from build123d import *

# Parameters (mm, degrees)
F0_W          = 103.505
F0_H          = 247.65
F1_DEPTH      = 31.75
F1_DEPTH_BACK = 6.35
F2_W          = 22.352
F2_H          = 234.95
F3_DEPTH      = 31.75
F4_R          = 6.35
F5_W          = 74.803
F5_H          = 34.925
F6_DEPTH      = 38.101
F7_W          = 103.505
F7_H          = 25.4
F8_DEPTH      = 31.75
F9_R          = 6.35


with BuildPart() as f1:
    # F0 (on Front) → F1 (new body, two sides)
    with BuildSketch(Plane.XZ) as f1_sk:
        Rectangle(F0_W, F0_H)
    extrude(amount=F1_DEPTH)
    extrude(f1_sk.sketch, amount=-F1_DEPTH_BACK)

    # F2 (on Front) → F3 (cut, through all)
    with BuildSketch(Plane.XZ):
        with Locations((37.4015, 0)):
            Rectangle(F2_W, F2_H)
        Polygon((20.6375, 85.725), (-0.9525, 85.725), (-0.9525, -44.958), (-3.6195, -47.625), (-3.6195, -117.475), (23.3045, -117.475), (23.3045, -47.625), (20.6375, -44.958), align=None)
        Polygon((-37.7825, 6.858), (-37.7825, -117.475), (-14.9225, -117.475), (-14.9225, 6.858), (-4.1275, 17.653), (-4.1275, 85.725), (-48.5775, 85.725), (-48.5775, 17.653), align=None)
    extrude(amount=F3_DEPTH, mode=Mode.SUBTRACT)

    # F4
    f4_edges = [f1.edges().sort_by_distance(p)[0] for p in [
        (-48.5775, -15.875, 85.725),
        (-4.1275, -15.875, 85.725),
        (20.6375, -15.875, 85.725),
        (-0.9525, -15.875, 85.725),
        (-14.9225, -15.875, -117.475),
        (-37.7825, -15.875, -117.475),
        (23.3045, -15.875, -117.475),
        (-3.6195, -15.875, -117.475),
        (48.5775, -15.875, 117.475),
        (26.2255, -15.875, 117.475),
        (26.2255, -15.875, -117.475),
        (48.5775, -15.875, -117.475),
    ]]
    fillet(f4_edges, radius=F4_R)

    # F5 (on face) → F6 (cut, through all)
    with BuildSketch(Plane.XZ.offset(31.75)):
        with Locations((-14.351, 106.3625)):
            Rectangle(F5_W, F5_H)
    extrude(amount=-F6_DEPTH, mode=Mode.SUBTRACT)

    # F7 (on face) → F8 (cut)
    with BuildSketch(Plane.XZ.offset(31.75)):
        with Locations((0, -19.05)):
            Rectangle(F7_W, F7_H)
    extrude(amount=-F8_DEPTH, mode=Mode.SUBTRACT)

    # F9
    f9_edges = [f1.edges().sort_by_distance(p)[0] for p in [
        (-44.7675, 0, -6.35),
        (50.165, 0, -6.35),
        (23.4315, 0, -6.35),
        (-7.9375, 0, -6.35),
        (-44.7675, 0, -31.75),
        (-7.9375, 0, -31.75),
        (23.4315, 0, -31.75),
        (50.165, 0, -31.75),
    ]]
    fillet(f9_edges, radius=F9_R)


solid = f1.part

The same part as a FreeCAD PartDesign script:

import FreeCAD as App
import Part
import Sketcher
Q = App.Units.Quantity


def edges_at(feature, points):
    """Names of the edges that pass closest to the given points."""
    edges = feature.Shape.Edges
    near = lambda p: min(range(len(edges)), key=lambda i: edges[i].distToShape(Part.Vertex(*p))[0])
    return sorted({f"Edge{near(p) + 1}" for p in points})

doc = App.newDocument("Part")
body = doc.addObject("PartDesign::Body", "Body")

# Sketch on XZ plane
sketch1 = body.newObject("Sketcher::SketchObject", "Sketch")
sketch1.AttachmentSupport = (doc.getObject("XZ_Plane"), [""])
sketch1.MapMode = "FlatFace"
sketch1.addGeometry([
    Part.LineSegment(App.Vector(-52, 124, 0), App.Vector(-52, -124, 0)),
    Part.LineSegment(App.Vector(-52, -124, 0), App.Vector(52, -124, 0)),
    Part.LineSegment(App.Vector(52, -124, 0), App.Vector(52, 124, 0)),
    Part.LineSegment(App.Vector(52, 124, 0), App.Vector(-52, 124, 0)),
], False)
sketch1.addConstraint([
    Sketcher.Constraint("Coincident", 0, 2, 1, 1),
    Sketcher.Constraint("Coincident", 1, 2, 2, 1),
    Sketcher.Constraint("Coincident", 2, 2, 3, 1),
    Sketcher.Constraint("Coincident", 3, 2, 0, 1),
    Sketcher.Constraint("Vertical", 0),
    Sketcher.Constraint("Horizontal", 1),
    Sketcher.Constraint("Vertical", 2),
    Sketcher.Constraint("Horizontal", 3),
    Sketcher.Constraint("Symmetric", 0, 2, 2, 2, -1, 1),
    Sketcher.Constraint("DistanceY", 0, 2, 0, 1, Q("9.75 in")),
    Sketcher.Constraint("DistanceX", 1, 1, 1, 2, Q("4.075 in")),
])
pad1 = body.newObject("PartDesign::Pad", "Pad")
pad1.Profile = sketch1
pad1.Type = "TwoLengths"
pad1.Length = Q("1.25 in")
pad1.Length2 = Q("0.25 in")

# Sketch on XZ plane
sketch2 = body.newObject("Sketcher::SketchObject", "Sketch001")
sketch2.AttachmentSupport = (doc.getObject("XZ_Plane"), [""])
sketch2.MapMode = "FlatFace"
sketch2.addGeometry([
    Part.LineSegment(App.Vector(26.2, 117.5, 0), App.Vector(26.2, -117.5, 0)),  # 0
    Part.LineSegment(App.Vector(26.2, -117.5, 0), App.Vector(48.6, -117.5, 0)),  # 1
    Part.LineSegment(App.Vector(48.6, -117.5, 0), App.Vector(48.6, 117.5, 0)),  # 2
    Part.LineSegment(App.Vector(48.6, 117.5, 0), App.Vector(26.2, 117.5, 0)),  # 3
    Part.LineSegment(App.Vector(20.6, 85.7, 0), App.Vector(-1, 85.7, 0)),  # 4
    Part.LineSegment(App.Vector(-1, 85.7, 0), App.Vector(-1, -45, 0)),  # 5
    Part.LineSegment(App.Vector(-1, -45, 0), App.Vector(-3.6, -47.6, 0)),  # 6
    Part.LineSegment(App.Vector(-3.6, -47.6, 0), App.Vector(-3.6, -117.5, 0)),  # 7
    Part.LineSegment(App.Vector(-3.6, -117.5, 0), App.Vector(23.3, -117.5, 0)),  # 8
    Part.LineSegment(App.Vector(23.3, -117.5, 0), App.Vector(23.3, -47.6, 0)),  # 9
    Part.LineSegment(App.Vector(23.3, -47.6, 0), App.Vector(20.6, -45, 0)),  # 10
    Part.LineSegment(App.Vector(20.6, -45, 0), App.Vector(20.6, 85.7, 0)),  # 11
    Part.LineSegment(App.Vector(-37.8, 6.9, 0), App.Vector(-37.8, -117.5, 0)),  # 12
    Part.LineSegment(App.Vector(-37.8, -117.5, 0), App.Vector(-14.9, -117.5, 0)),  # 13
    Part.LineSegment(App.Vector(-14.9, -117.5, 0), App.Vector(-14.9, 6.9, 0)),  # 14
    Part.LineSegment(App.Vector(-14.9, 6.9, 0), App.Vector(-4.1, 17.7, 0)),  # 15
    Part.LineSegment(App.Vector(-4.1, 17.7, 0), App.Vector(-4.1, 85.7, 0)),  # 16
    Part.LineSegment(App.Vector(-4.1, 85.7, 0), App.Vector(-48.6, 85.7, 0)),  # 17
    Part.LineSegment(App.Vector(-48.6, 85.7, 0), App.Vector(-48.6, 17.7, 0)),  # 18
    Part.LineSegment(App.Vector(-48.6, 17.7, 0), App.Vector(-37.8, 6.9, 0)),  # 19
], False)
sketch2.addConstraint([
    Sketcher.Constraint("Coincident", 0, 2, 1, 1),
    Sketcher.Constraint("Coincident", 1, 2, 2, 1),
    Sketcher.Constraint("Coincident", 2, 2, 3, 1),
    Sketcher.Constraint("Coincident", 3, 2, 0, 1),
    Sketcher.Constraint("Coincident", 4, 2, 5, 1),
    Sketcher.Constraint("Coincident", 5, 2, 6, 1),
    Sketcher.Constraint("Coincident", 6, 2, 7, 1),
    Sketcher.Constraint("Coincident", 7, 2, 8, 1),
    Sketcher.Constraint("Coincident", 8, 2, 9, 1),
    Sketcher.Constraint("Coincident", 9, 2, 10, 1),
    Sketcher.Constraint("Coincident", 10, 2, 11, 1),
    Sketcher.Constraint("Coincident", 11, 2, 4, 1),
    Sketcher.Constraint("Coincident", 12, 2, 13, 1),
    Sketcher.Constraint("Coincident", 13, 2, 14, 1),
    Sketcher.Constraint("Coincident", 14, 2, 15, 1),
    Sketcher.Constraint("Coincident", 15, 2, 16, 1),
    Sketcher.Constraint("Coincident", 16, 2, 17, 1),
    Sketcher.Constraint("Coincident", 17, 2, 18, 1),
    Sketcher.Constraint("Coincident", 18, 2, 19, 1),
    Sketcher.Constraint("Coincident", 19, 2, 12, 1),
    Sketcher.Constraint("Vertical", 0),
    Sketcher.Constraint("Horizontal", 1),
    Sketcher.Constraint("Vertical", 2),
    Sketcher.Constraint("Horizontal", 3),
    Sketcher.Constraint("Horizontal", 4),
    Sketcher.Constraint("Vertical", 5),
    Sketcher.Constraint("Vertical", 7),
    Sketcher.Constraint("Horizontal", 8),
    Sketcher.Constraint("Vertical", 9),
    Sketcher.Constraint("Vertical", 11),
    Sketcher.Constraint("Vertical", 12),
    Sketcher.Constraint("Horizontal", 13),
    Sketcher.Constraint("Vertical", 14),
    Sketcher.Constraint("Vertical", 16),
    Sketcher.Constraint("Horizontal", 17),
    Sketcher.Constraint("Vertical", 18),
    Sketcher.Constraint("Perpendicular", 6, 10),
    Sketcher.Constraint("Perpendicular", 10, 15),
    Sketcher.Constraint("Perpendicular", 15, 19),
    Sketcher.Constraint("Horizontal", 1, 2, 7, 2),
    Sketcher.Constraint("Horizontal", 6, 2, 9, 2),
    Sketcher.Constraint("Horizontal", 5, 2, 10, 2),
    Sketcher.Constraint("Horizontal", 8, 2, 12, 2),
    Sketcher.Constraint("Horizontal", 11, 2, 16, 2),
    Sketcher.Constraint("Horizontal", 15, 2, 18, 2),
    Sketcher.Constraint("Horizontal", 14, 2, 19, 2),
    Sketcher.Constraint("Equal", 6, 10),
    Sketcher.Constraint("DistanceX", 13, 1, 13, 2, Q("0.9 in")),
    Sketcher.Constraint("DistanceY", 0, 2, 4, 2, Q("8 in")),
    Sketcher.Constraint("DistanceX", 1, 1, 1, 2, Q("0.88 in")),
    Sketcher.Constraint("DistanceX", 4, 2, 4, 1, Q("0.85 in")),
    Sketcher.Constraint("DistanceX", 8, 1, 8, 2, Q("1.06 in")),
    Sketcher.Constraint("DistanceX", 17, 2, 17, 1, Q("1.75 in")),
    Sketcher.Constraint("DistanceY", 0, 2, 0, 1, Q("9.25 in")),
    Sketcher.Constraint("DistanceY", 7, 2, 7, 1, Q("2.75 in")),
    Sketcher.Constraint("DistanceY", 16, 1, 16, 2, Q("2.68 in")),
    Sketcher.Constraint("DistanceX", 11, 2, 2, 2, Q("1.1 in")),
    Sketcher.Constraint("DistanceX", 13, 2, 1, 2, Q("2.5 in")),
    Sketcher.Constraint("DistanceY", 5, 2, -1, 1, Q("1.77 in")),
    Sketcher.Constraint("DistanceX", -1, 1, 10, 2, Q("0.8125 in")),
])
pocket1 = body.newObject("PartDesign::Pocket", "Pocket")
pocket1.Profile = sketch2
pocket1.Type = "ThroughAll"
pocket1.Reversed = True
doc.recompute()

fillet = body.newObject("PartDesign::Fillet", "Fillet")
fillet.Base = (pocket1, edges_at(pocket1, [
    (-48.578, -15.875, 85.725),
    (-4.128, -15.875, 85.725),
    (20.637, -15.875, 85.725),
    (-0.953, -15.875, 85.725),
    (-14.922, -15.875, -117.475),
    (-37.782, -15.875, -117.475),
    (23.305, -15.875, -117.475),
    (-3.619, -15.875, -117.475),
    (48.578, -15.875, 117.475),
    (26.226, -15.875, 117.475),
    (26.226, -15.875, -117.475),
    (48.578, -15.875, -117.475),
]))
fillet.Radius = Q("0.25 in")

# Sketch on XZ plane
sketch3 = body.newObject("Sketcher::SketchObject", "Sketch002")
sketch3.AttachmentSupport = (doc.getObject("XZ_Plane"), [""])
sketch3.MapMode = "FlatFace"
sketch3.AttachmentOffset = App.Placement(App.Vector(0, 0, 1.25 * 25.4), App.Rotation())
sketch3.addGeometry([
    Part.LineSegment(App.Vector(-52, 124, 0), App.Vector(-52, 89, 0)),
    Part.LineSegment(App.Vector(-52, 89, 0), App.Vector(23, 89, 0)),
    Part.LineSegment(App.Vector(23, 89, 0), App.Vector(23, 124, 0)),
    Part.LineSegment(App.Vector(23, 124, 0), App.Vector(-52, 124, 0)),
], False)
sketch3.addConstraint([
    Sketcher.Constraint("Coincident", 0, 2, 1, 1),
    Sketcher.Constraint("Coincident", 1, 2, 2, 1),
    Sketcher.Constraint("Coincident", 2, 2, 3, 1),
    Sketcher.Constraint("Coincident", 3, 2, 0, 1),
    Sketcher.Constraint("Vertical", 0),
    Sketcher.Constraint("Horizontal", 1),
    Sketcher.Constraint("Vertical", 2),
    Sketcher.Constraint("Horizontal", 3),
    Sketcher.Constraint("DistanceY", -1, 1, 0, 2, Q("3.5 in")),
    Sketcher.Constraint("DistanceX", 1, 1, 1, 2, Q("2.945 in")),
    Sketcher.Constraint("DistanceY", 0, 2, 0, 1, Q("1.375 in")),
    Sketcher.Constraint("DistanceX", 0, 2, -1, 1, Q("2.0375 in")),
])
pocket2 = body.newObject("PartDesign::Pocket", "Pocket001")
pocket2.Profile = sketch3
pocket2.Type = "ThroughAll"

# Sketch on XZ plane
sketch4 = body.newObject("Sketcher::SketchObject", "Sketch003")
sketch4.AttachmentSupport = (doc.getObject("XZ_Plane"), [""])
sketch4.MapMode = "FlatFace"
sketch4.AttachmentOffset = App.Placement(App.Vector(0, 0, 1.25 * 25.4), App.Rotation())
sketch4.addGeometry([
    Part.LineSegment(App.Vector(-52, -6, 0), App.Vector(-52, -32, 0)),
    Part.LineSegment(App.Vector(-52, -32, 0), App.Vector(52, -32, 0)),
    Part.LineSegment(App.Vector(52, -32, 0), App.Vector(52, -6, 0)),
    Part.LineSegment(App.Vector(52, -6, 0), App.Vector(-52, -6, 0)),
], False)
sketch4.addConstraint([
    Sketcher.Constraint("Coincident", 0, 2, 1, 1),
    Sketcher.Constraint("Coincident", 1, 2, 2, 1),
    Sketcher.Constraint("Coincident", 2, 2, 3, 1),
    Sketcher.Constraint("Coincident", 3, 2, 0, 1),
    Sketcher.Constraint("Vertical", 0),
    Sketcher.Constraint("Horizontal", 1),
    Sketcher.Constraint("Vertical", 2),
    Sketcher.Constraint("Horizontal", 3),
    Sketcher.Constraint("DistanceY", 0, 2, 0, 1, Q("1 in")),
    Sketcher.Constraint("DistanceX", 1, 1, 1, 2, Q("4.075 in")),
    Sketcher.Constraint("DistanceY", 0, 2, -1, 1, Q("1.25 in")),
    Sketcher.Constraint("DistanceX", 0, 2, -1, 1, Q("2.0375 in")),
])
pocket3 = body.newObject("PartDesign::Pocket", "Pocket002")
pocket3.Profile = sketch4
pocket3.Length = Q("1.25 in")
doc.recompute()

fillet2 = body.newObject("PartDesign::Fillet", "Fillet001")
fillet2.Base = (pocket3, edges_at(pocket3, [
    (-44.767, 0, -6.35),
    (50.165, 0, -6.35),
    (23.431, 0, -6.35),
    (-7.938, 0, -6.35),
    (-44.767, 0, -31.75),
    (-7.938, 0, -31.75),
    (23.431, 0, -31.75),
    (50.165, 0, -31.75),
]))
fillet2.Radius = Q("0.25 in")

doc.recompute()
